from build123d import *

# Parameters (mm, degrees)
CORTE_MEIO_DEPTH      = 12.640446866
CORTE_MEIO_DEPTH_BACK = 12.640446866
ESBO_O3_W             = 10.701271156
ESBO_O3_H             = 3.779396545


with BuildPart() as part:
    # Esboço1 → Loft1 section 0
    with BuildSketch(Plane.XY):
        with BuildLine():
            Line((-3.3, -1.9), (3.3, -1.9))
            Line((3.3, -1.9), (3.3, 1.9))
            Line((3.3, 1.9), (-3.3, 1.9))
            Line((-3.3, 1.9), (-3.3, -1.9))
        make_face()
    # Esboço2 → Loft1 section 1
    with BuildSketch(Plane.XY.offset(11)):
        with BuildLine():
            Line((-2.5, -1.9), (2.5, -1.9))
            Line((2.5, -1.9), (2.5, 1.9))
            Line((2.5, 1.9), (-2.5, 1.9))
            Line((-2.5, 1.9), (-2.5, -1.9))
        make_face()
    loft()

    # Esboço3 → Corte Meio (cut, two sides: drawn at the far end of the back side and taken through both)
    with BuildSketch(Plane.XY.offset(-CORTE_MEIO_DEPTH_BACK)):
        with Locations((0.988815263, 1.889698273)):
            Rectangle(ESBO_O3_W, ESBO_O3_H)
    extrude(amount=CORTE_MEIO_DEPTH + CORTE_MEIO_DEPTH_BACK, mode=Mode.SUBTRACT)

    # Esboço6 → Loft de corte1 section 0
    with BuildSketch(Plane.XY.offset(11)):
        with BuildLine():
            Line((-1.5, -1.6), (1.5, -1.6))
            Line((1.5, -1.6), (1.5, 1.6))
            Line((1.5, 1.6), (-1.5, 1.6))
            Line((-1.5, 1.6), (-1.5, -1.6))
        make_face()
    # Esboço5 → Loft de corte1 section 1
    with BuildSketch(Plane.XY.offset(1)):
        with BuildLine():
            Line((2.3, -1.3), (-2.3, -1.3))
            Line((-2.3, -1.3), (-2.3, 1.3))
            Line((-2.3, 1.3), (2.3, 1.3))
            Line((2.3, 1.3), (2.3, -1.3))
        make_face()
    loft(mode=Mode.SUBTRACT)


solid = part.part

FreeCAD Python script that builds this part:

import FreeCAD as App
import Part
import Sketcher

V = App.Vector
Q = App.Units.Quantity

doc = App.newDocument("Part")
body = doc.addObject("PartDesign::Body", "Body")

sketch1 = doc.addObject("Sketcher::SketchObject", "Sketch")
body.addObject(sketch1)
sketch1.AttachmentSupport = (doc.XY_Plane, [""])
sketch1.MapMode = "FlatFace"
sketch1.addGeometry(Part.LineSegment(V(-3.3, -1.9, 0), V(3.3, -1.9, 0)), False)
sketch1.addGeometry(Part.LineSegment(V(3.3, -1.9, 0), V(3.3, 1.9, 0)), False)
sketch1.addGeometry(Part.LineSegment(V(3.3, 1.9, 0), V(-3.3, 1.9, 0)), False)
sketch1.addGeometry(Part.LineSegment(V(-3.3, 1.9, 0), V(-3.3, -1.9, 0)), False)
sketch1.addConstraint(Sketcher.Constraint("Coincident", 0, 2, 1, 1))
sketch1.addConstraint(Sketcher.Constraint("Coincident", 1, 2, 2, 1))
sketch1.addConstraint(Sketcher.Constraint("Coincident", 2, 2, 3, 1))
sketch1.addConstraint(Sketcher.Constraint("Coincident", 3, 2, 0, 1))
sketch1.addConstraint(Sketcher.Constraint("Horizontal", 0))
sketch1.addConstraint(Sketcher.Constraint("Vertical", 1))
sketch1.addConstraint(Sketcher.Constraint("Horizontal", 2))
sketch1.addConstraint(Sketcher.Constraint("Vertical", 3))
sketch1.addConstraint(Sketcher.Constraint("Symmetric", 0, 2, 2, 2, -1, 1))
sketch1.addConstraint(Sketcher.Constraint("DistanceX", 0, 1, 0, 2, Q("6.6 mm")))
sketch1.addConstraint(Sketcher.Constraint("DistanceY", 1, 1, 1, 2, Q("3.8 mm")))

sketch2 = doc.addObject("Sketcher::SketchObject", "Sketch001")
body.addObject(sketch2)
sketch2.AttachmentSupport = (doc.XY_Plane, [""])
sketch2.MapMode = "FlatFace"
sketch2.AttachmentOffset = App.Placement(V(0, 0, 11), App.Rotation())
sketch2.addGeometry(Part.LineSegment(V(-2.5, -1.9, 0), V(2.5, -1.9, 0)), False)
sketch2.addGeometry(Part.LineSegment(V(2.5, -1.9, 0), V(2.5, 1.9, 0)), False)
sketch2.addGeometry(Part.LineSegment(V(2.5, 1.9, 0), V(-2.5, 1.9, 0)), False)
sketch2.addGeometry(Part.LineSegment(V(-2.5, 1.9, 0), V(-2.5, -1.9, 0)), False)
sketch2.addConstraint(Sketcher.Constraint("Coincident", 0, 2, 1, 1))
sketch2.addConstraint(Sketcher.Constraint("Coincident", 1, 2, 2, 1))
sketch2.addConstraint(Sketcher.Constraint("Coincident", 2, 2, 3, 1))
sketch2.addConstraint(Sketcher.Constraint("Coincident", 3, 2, 0, 1))
sketch2.addConstraint(Sketcher.Constraint("Horizontal", 0))
sketch2.addConstraint(Sketcher.Constraint("Vertical", 1))
sketch2.addConstraint(Sketcher.Constraint("Horizontal", 2))
sketch2.addConstraint(Sketcher.Constraint("Vertical", 3))
sketch2.addConstraint(Sketcher.Constraint("Symmetric", 0, 2, 2, 2, -1, 1))
sketch2.addConstraint(Sketcher.Constraint("DistanceX", 0, 1, 0, 2, Q("5 mm")))
sketch2.addConstraint(Sketcher.Constraint("DistanceY", 1, 1, 1, 2, Q("3.8 mm")))

additiveloft = doc.addObject("PartDesign::AdditiveLoft", "AdditiveLoft")
body.addObject(additiveloft)
additiveloft.Profile = sketch1
additiveloft.Sections = [sketch2]

sketch3 = doc.addObject("Sketcher::SketchObject", "Sketch002")
body.addObject(sketch3)
sketch3.AttachmentSupport = (doc.XY_Plane, [""])
sketch3.MapMode = "FlatFace"
sketch3.addGeometry(Part.LineSegment(V(-4.36182, 3.779397, 0), V(-4.36182, 0, 0)), False)
sketch3.addGeometry(Part.LineSegment(V(-4.36182, 0, 0), V(6.339451, 0, 0)), False)
sketch3.addGeometry(Part.LineSegment(V(6.339451, 0, 0), V(6.339451, 3.779397, 0)), False)
sketch3.addGeometry(Part.LineSegment(V(6.339451, 3.779397, 0), V(-4.36182, 3.779397, 0)), False)
sketch3.addConstraint(Sketcher.Constraint("Coincident", 0, 2, 1, 1))
sketch3.addConstraint(Sketcher.Constraint("Coincident", 1, 2, 2, 1))
sketch3.addConstraint(Sketcher.Constraint("Coincident", 2, 2, 3, 1))
sketch3.addConstraint(Sketcher.Constraint("Coincident", 3, 2, 0, 1))
sketch3.addConstraint(Sketcher.Constraint("Vertical", 0))
sketch3.addConstraint(Sketcher.Constraint("Horizontal", 1))
sketch3.addConstraint(Sketcher.Constraint("Vertical", 2))
sketch3.addConstraint(Sketcher.Constraint("Horizontal", 3))
sketch3.addConstraint(Sketcher.Constraint("PointOnObject", 0, 2, -1))
sketch3.addConstraint(Sketcher.Constraint("DistanceX", 1, 1, 1, 2, Q("10.701271 mm")))
sketch3.addConstraint(Sketcher.Constraint("DistanceY", 0, 2, 0, 1, Q("3.779397 mm")))
sketch3.addConstraint(Sketcher.Constraint("DistanceX", 0, 2, -1, 1, Q("4.36182 mm")))
pocket1 = doc.addObject("PartDesign::Pocket", "Pocket")
body.addObject(pocket1)
pocket1.Profile = sketch3
pocket1.Type = "ThroughAll"
pocket1.Midplane = True

sketch4 = doc.addObject("Sketcher::SketchObject", "Sketch003")
body.addObject(sketch4)
sketch4.AttachmentSupport = (doc.XY_Plane, [""])
sketch4.MapMode = "FlatFace"
sketch4.AttachmentOffset = App.Placement(V(0, 0, 11), App.Rotation())
sketch4.addGeometry(Part.LineSegment(V(-1.5, -1.6, 0), V(1.5, -1.6, 0)), False)
sketch4.addGeometry(Part.LineSegment(V(1.5, -1.6, 0), V(1.5, 1.6, 0)), False)
sketch4.addGeometry(Part.LineSegment(V(1.5, 1.6, 0), V(-1.5, 1.6, 0)), False)
sketch4.addGeometry(Part.LineSegment(V(-1.5, 1.6, 0), V(-1.5, -1.6, 0)), False)
sketch4.addConstraint(Sketcher.Constraint("Coincident", 0, 2, 1, 1))
sketch4.addConstraint(Sketcher.Constraint("Coincident", 1, 2, 2, 1))
sketch4.addConstraint(Sketcher.Constraint("Coincident", 2, 2, 3, 1))
sketch4.addConstraint(Sketcher.Constraint("Coincident", 3, 2, 0, 1))
sketch4.addConstraint(Sketcher.Constraint("Horizontal", 0))
sketch4.addConstraint(Sketcher.Constraint("Vertical", 1))
sketch4.addConstraint(Sketcher.Constraint("Horizontal", 2))
sketch4.addConstraint(Sketcher.Constraint("Vertical", 3))
sketch4.addConstraint(Sketcher.Constraint("Symmetric", 0, 2, 2, 2, -1, 1))
sketch4.addConstraint(Sketcher.Constraint("DistanceX", 0, 1, 0, 2, Q("3 mm")))
sketch4.addConstraint(Sketcher.Constraint("DistanceY", 1, 1, 1, 2, Q("3.2 mm")))

sketch5 = doc.addObject("Sketcher::SketchObject", "Sketch004")
body.addObject(sketch5)
sketch5.AttachmentSupport = (doc.XY_Plane, [""])
sketch5.MapMode = "FlatFace"
sketch5.AttachmentOffset = App.Placement(V(0, 0, 1), App.Rotation())
sketch5.addGeometry(Part.LineSegment(V(-2.3, -1.3, 0), V(2.3, -1.3, 0)), False)
sketch5.addGeometry(Part.LineSegment(V(2.3, -1.3, 0), V(2.3, 1.3, 0)), False)
sketch5.addGeometry(Part.LineSegment(V(2.3, 1.3, 0), V(-2.3, 1.3, 0)), False)
sketch5.addGeometry(Part.LineSegment(V(-2.3, 1.3, 0), V(-2.3, -1.3, 0)), False)
sketch5.addConstraint(Sketcher.Constraint("Coincident", 0, 2, 1, 1))
sketch5.addConstraint(Sketcher.Constraint("Coincident", 1, 2, 2, 1))
sketch5.addConstraint(Sketcher.Constraint("Coincident", 2, 2, 3, 1))
sketch5.addConstraint(Sketcher.Constraint("Coincident", 3, 2, 0, 1))
sketch5.addConstraint(Sketcher.Constraint("Horizontal", 0))
sketch5.addConstraint(Sketcher.Constraint("Vertical", 1))
sketch5.addConstraint(Sketcher.Constraint("Horizontal", 2))
sketch5.addConstraint(Sketcher.Constraint("Vertical", 3))
sketch5.addConstraint(Sketcher.Constraint("Symmetric", 0, 2, 2, 2, -1, 1))
sketch5.addConstraint(Sketcher.Constraint("DistanceX", 0, 1, 0, 2, Q("4.6 mm")))
sketch5.addConstraint(Sketcher.Constraint("DistanceY", 1, 1, 1, 2, Q("2.6 mm")))

subtractiveloft = doc.addObject("PartDesign::SubtractiveLoft", "SubtractiveLoft")
body.addObject(subtractiveloft)
subtractiveloft.Profile = sketch4
subtractiveloft.Sections = [sketch5]

doc.recompute()
